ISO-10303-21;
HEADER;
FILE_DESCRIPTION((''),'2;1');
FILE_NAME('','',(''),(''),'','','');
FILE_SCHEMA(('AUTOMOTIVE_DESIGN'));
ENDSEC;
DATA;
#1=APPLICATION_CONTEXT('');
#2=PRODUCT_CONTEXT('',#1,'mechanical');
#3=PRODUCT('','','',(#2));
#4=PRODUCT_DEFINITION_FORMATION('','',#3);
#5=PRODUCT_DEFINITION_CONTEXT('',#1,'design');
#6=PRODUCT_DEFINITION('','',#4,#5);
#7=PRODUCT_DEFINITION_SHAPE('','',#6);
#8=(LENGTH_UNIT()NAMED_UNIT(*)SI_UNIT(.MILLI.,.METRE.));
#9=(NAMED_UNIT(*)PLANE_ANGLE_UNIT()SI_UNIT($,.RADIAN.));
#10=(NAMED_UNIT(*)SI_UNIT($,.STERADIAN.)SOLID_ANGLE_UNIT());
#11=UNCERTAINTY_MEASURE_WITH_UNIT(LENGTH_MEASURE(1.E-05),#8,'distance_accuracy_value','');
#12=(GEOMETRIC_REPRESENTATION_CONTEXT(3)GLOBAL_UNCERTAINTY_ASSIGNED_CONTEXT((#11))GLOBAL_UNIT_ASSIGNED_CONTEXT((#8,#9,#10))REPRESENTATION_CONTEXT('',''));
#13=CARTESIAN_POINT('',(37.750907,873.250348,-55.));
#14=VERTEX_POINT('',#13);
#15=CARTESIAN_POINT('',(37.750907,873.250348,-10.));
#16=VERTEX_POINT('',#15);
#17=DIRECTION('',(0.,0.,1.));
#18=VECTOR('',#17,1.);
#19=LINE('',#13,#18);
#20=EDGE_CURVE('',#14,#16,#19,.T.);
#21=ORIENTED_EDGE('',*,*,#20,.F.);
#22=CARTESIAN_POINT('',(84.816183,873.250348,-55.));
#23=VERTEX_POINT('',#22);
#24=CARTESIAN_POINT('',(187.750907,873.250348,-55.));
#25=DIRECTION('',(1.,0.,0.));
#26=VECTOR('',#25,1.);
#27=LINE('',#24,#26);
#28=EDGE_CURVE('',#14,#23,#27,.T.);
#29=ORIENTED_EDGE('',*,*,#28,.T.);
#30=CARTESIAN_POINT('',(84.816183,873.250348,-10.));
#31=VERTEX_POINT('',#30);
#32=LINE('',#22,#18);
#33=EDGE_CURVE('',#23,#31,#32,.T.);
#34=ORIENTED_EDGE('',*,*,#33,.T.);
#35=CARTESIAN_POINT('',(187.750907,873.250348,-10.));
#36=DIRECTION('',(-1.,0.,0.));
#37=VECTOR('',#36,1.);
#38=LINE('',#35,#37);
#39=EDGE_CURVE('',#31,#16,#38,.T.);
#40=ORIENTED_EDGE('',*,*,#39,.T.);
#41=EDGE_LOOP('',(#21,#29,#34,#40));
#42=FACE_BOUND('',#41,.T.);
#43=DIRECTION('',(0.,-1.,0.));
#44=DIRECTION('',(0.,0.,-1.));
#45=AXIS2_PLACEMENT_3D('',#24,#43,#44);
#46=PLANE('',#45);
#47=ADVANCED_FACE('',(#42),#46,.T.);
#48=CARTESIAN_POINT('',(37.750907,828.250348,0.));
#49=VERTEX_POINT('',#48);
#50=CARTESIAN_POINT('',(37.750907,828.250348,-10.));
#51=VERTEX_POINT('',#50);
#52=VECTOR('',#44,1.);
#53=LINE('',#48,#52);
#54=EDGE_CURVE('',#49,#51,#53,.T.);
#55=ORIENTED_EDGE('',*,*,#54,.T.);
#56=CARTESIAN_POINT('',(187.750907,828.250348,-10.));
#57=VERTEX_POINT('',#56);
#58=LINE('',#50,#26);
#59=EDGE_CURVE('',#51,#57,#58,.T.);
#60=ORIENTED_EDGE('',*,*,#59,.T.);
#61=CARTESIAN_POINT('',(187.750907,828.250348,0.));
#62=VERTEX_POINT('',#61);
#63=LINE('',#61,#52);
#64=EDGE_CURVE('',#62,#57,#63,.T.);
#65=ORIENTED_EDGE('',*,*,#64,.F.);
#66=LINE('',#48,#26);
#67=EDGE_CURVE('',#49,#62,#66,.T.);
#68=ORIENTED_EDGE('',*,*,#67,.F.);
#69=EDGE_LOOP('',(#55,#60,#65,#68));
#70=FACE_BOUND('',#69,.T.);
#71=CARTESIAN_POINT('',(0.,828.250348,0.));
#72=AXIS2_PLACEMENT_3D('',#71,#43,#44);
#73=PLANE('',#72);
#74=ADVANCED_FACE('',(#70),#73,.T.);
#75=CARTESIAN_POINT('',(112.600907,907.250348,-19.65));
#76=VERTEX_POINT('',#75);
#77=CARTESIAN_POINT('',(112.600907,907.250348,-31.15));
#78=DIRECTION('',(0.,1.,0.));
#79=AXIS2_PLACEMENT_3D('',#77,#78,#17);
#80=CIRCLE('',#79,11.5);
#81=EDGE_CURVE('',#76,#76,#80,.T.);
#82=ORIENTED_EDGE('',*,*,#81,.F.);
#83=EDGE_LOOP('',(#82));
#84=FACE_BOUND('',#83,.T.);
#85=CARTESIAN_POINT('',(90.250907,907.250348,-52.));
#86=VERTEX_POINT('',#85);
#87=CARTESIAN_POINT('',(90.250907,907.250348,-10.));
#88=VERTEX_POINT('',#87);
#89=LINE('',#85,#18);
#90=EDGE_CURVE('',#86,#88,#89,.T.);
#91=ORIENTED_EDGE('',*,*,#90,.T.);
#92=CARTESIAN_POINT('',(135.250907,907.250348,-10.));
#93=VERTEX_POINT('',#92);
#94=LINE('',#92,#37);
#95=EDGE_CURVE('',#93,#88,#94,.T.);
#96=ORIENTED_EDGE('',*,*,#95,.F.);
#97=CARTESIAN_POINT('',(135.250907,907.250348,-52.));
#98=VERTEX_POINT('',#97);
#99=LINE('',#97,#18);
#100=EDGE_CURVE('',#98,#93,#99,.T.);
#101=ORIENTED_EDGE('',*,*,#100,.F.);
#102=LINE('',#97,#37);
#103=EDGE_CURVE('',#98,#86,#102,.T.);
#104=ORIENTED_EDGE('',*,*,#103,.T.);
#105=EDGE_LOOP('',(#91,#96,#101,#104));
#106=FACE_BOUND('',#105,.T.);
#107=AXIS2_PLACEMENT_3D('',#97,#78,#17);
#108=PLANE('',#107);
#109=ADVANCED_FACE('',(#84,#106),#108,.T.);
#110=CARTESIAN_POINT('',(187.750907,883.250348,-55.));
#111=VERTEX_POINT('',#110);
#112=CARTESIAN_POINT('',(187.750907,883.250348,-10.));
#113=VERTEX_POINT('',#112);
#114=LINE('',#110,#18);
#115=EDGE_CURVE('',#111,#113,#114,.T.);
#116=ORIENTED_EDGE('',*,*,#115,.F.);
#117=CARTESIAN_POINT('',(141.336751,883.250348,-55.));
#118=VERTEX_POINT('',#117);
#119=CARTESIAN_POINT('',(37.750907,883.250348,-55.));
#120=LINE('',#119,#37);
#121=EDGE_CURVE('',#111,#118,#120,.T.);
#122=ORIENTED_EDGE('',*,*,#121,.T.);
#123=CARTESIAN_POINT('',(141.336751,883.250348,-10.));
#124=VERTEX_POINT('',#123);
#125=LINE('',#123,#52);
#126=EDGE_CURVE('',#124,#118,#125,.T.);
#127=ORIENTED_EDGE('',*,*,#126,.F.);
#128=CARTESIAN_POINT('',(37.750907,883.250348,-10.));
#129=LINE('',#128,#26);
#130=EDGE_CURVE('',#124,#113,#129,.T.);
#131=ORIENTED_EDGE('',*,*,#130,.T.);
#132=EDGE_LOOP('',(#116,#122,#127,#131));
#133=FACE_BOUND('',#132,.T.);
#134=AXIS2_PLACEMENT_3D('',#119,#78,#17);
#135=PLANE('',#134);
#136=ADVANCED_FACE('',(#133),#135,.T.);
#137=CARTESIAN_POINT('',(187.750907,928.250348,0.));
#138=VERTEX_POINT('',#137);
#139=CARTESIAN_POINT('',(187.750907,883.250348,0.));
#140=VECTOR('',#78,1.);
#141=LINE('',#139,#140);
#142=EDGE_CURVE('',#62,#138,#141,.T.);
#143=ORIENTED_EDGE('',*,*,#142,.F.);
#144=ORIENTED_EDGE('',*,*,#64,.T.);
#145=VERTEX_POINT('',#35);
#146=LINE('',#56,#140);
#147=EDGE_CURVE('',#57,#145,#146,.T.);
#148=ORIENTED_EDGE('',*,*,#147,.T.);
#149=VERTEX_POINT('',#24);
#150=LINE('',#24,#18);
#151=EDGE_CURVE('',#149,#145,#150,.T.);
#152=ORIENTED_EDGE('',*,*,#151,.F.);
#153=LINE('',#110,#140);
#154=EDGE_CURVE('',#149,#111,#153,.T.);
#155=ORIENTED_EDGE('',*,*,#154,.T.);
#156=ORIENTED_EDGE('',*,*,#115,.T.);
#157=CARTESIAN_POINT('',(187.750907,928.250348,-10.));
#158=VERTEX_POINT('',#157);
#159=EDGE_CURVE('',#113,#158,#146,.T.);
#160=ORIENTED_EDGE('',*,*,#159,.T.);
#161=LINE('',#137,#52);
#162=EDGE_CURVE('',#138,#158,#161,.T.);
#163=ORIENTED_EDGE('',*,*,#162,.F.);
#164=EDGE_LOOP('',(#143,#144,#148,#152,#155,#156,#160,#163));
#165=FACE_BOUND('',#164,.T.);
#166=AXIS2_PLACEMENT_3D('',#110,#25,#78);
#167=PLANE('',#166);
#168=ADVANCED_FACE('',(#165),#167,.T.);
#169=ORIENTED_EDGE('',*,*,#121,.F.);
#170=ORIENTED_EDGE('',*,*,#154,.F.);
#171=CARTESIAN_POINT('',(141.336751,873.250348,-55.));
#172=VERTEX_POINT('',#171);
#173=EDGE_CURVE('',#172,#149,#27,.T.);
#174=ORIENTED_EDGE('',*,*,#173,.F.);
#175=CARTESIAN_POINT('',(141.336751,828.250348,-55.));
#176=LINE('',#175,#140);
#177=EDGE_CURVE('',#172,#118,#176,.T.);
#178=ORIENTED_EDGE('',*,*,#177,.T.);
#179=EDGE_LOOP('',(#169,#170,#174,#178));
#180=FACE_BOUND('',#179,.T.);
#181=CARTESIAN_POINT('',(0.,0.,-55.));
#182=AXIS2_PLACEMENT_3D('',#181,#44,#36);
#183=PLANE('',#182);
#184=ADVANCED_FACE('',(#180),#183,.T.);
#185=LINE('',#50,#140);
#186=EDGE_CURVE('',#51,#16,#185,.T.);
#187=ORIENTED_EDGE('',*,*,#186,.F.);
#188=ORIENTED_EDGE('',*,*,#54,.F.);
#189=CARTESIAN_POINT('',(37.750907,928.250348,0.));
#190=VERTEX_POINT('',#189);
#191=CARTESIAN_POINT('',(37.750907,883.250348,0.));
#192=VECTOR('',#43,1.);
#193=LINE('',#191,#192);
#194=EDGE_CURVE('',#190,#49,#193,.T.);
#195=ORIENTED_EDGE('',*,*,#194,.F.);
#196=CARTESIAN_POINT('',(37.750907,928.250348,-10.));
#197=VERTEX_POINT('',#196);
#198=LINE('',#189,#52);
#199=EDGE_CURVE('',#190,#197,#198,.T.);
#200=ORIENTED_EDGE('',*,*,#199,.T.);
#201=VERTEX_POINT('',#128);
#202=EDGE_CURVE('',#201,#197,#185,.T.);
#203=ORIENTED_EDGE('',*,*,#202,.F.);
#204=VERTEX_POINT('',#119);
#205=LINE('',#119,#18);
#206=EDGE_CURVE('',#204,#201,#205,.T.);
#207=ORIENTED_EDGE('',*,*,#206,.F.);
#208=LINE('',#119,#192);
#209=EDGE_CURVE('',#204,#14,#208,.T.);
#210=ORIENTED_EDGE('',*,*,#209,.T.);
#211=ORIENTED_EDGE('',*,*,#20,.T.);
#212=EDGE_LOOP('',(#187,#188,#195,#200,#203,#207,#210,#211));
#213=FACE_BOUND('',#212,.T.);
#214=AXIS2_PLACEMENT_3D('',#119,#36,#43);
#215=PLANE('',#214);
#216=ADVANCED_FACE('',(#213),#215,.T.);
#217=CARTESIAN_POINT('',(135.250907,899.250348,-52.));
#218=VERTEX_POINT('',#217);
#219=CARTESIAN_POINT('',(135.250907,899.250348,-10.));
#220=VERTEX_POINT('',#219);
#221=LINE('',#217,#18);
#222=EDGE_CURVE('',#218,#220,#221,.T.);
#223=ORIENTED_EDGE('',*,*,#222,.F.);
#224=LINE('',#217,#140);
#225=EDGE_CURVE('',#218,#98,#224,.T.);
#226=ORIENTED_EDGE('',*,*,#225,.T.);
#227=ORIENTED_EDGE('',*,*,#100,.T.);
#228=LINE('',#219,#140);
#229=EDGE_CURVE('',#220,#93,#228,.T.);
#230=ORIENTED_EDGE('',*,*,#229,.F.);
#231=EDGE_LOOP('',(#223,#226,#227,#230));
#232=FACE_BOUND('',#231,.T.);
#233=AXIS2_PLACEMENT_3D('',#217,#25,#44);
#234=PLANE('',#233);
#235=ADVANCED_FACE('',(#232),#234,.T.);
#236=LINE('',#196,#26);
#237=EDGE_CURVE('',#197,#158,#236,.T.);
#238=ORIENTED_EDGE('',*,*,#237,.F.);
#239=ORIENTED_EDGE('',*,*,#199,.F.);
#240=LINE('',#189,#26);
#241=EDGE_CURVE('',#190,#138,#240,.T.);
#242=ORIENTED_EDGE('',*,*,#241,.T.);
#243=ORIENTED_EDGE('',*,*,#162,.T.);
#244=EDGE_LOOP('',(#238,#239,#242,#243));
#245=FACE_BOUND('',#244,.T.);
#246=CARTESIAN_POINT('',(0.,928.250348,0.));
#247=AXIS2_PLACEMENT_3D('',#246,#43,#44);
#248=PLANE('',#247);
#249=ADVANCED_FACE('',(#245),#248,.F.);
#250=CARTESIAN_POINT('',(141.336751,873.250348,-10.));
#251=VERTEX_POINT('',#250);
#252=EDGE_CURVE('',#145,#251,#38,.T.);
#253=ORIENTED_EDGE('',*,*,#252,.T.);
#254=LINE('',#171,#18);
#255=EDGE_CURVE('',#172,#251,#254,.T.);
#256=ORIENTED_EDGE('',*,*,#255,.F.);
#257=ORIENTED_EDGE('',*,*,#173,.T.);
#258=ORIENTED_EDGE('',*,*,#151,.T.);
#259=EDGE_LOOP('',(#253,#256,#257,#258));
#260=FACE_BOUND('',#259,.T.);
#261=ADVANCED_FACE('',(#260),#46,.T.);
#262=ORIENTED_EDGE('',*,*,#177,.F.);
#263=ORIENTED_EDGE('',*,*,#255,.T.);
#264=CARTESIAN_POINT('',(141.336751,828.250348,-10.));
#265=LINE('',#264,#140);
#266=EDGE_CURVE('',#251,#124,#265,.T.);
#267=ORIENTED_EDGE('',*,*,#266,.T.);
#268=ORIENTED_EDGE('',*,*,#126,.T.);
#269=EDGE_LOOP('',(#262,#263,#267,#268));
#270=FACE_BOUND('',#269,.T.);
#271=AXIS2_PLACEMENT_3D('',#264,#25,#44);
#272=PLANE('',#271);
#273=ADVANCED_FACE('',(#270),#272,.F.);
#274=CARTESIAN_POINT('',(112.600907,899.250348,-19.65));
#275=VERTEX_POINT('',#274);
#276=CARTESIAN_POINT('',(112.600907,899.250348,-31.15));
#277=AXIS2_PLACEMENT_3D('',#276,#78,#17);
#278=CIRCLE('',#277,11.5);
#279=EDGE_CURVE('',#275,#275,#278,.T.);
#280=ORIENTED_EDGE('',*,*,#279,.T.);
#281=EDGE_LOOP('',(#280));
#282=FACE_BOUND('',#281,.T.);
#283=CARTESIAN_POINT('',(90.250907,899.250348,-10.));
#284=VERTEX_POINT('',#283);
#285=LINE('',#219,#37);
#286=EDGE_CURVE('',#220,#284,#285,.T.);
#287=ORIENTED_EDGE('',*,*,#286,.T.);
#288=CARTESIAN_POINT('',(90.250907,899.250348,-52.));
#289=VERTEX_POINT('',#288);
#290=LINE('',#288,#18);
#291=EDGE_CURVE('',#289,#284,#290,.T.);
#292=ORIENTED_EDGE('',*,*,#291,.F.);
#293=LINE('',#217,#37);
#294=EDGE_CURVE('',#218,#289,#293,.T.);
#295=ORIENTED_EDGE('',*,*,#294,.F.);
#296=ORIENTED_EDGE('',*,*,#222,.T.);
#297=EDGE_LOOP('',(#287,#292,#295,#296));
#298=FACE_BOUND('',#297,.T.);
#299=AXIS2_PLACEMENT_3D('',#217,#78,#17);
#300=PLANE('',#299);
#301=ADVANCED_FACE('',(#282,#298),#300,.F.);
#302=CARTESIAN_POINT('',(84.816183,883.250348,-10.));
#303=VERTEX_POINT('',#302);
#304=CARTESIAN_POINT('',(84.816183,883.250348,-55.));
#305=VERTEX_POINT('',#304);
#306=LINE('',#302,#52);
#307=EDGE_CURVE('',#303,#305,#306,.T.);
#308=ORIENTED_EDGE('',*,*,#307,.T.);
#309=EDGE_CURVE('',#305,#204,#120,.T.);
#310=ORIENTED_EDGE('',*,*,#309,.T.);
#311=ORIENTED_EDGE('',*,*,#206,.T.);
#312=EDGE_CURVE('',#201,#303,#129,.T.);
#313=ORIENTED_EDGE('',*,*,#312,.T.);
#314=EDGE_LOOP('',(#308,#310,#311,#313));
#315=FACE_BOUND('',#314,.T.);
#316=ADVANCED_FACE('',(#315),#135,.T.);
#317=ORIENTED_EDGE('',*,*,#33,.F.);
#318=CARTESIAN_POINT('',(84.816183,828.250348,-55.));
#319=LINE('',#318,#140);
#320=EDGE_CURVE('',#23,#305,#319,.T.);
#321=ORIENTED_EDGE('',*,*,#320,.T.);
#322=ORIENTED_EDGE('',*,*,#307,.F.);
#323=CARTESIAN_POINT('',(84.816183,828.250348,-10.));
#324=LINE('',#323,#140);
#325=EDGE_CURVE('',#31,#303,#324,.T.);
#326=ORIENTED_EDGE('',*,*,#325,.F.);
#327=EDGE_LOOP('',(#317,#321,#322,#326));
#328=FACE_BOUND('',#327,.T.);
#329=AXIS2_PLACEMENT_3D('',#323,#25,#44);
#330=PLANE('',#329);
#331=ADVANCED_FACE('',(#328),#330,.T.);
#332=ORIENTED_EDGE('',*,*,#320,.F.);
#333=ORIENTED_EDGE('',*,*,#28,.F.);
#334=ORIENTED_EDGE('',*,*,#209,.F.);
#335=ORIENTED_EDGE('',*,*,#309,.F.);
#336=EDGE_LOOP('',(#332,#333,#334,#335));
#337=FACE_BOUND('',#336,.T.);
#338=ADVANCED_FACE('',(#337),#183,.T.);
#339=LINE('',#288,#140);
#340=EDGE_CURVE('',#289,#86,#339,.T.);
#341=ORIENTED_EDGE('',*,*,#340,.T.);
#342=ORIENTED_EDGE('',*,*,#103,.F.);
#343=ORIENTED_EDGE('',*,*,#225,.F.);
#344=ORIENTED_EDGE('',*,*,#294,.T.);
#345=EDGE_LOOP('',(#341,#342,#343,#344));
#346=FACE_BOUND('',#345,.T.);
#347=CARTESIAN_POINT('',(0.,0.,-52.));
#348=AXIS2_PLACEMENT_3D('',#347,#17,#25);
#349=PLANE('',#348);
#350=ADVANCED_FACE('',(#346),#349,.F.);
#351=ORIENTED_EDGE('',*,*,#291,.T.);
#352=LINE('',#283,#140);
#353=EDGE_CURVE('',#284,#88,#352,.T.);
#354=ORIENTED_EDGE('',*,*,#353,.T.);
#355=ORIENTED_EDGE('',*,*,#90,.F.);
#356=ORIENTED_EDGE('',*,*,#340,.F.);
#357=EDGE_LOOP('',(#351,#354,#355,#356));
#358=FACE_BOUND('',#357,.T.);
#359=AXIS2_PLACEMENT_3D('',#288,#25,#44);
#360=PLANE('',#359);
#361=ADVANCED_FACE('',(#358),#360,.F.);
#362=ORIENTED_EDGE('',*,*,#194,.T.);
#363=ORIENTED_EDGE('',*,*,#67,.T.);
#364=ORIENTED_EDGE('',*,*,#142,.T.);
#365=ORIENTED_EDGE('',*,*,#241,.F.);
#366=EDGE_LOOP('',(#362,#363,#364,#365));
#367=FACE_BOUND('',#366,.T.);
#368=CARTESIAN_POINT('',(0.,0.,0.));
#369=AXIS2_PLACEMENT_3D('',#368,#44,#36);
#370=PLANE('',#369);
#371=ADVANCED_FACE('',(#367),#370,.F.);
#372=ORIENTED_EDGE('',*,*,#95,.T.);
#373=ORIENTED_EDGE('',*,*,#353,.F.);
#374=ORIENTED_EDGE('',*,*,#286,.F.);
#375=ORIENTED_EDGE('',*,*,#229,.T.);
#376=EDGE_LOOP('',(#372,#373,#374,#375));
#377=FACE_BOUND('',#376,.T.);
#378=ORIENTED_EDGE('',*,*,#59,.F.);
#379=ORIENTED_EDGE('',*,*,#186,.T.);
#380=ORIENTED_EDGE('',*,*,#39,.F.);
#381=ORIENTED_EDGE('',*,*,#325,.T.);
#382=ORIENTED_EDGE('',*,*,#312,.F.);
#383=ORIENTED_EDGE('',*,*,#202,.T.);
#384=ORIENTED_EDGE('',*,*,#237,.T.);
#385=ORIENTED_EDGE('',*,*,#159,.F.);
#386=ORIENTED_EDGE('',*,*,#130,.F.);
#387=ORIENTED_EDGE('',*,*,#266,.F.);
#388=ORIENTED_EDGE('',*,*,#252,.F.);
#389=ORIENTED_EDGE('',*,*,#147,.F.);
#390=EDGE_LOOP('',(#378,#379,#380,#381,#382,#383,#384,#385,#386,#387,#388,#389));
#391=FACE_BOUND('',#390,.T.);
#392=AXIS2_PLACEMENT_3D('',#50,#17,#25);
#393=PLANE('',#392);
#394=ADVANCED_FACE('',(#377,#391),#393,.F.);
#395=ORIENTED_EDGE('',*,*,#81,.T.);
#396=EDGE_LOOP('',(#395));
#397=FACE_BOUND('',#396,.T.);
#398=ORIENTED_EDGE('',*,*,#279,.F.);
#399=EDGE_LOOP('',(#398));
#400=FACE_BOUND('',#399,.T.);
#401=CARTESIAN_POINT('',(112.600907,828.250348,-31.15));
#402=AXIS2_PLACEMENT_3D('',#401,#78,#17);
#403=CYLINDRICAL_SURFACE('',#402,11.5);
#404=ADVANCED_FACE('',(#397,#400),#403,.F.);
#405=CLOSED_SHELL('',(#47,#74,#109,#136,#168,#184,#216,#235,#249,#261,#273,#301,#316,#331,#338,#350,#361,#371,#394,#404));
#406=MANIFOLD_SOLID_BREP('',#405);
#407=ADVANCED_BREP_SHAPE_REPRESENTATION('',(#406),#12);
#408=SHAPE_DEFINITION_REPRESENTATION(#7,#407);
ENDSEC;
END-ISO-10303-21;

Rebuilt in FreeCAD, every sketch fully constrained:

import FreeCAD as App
import Part
import Sketcher

V = App.Vector


def add_polygon(sketch, points):
    """Adds a closed chain of lines whose ends are joined by coincident constraints."""
    first, n = sketch.GeometryCount, len(points)
    for a, b in zip(points, points[1:] + points[:1]):
        sketch.addGeometry(Part.LineSegment(App.Vector(*a, 0), App.Vector(*b, 0)), False)
    for i in range(n):
        sketch.addConstraint(Sketcher.Constraint("Coincident", first + i, 2, first + (i + 1) % n, 1))

doc = App.newDocument("Part")
body = doc.addObject("PartDesign::Body", "Body")

sketch1 = doc.addObject("Sketcher::SketchObject", "Sketch")
body.addObject(sketch1)
sketch1.AttachmentSupport = (doc.XY_Plane, [""])
sketch1.MapMode = "FlatFace"
add_polygon(sketch1, [(38, 883), (38, 873), (188, 873), (188, 883)])
sketch1.addConstraint(Sketcher.Constraint("Vertical", 0))
sketch1.addConstraint(Sketcher.Constraint("Horizontal", 1))
sketch1.addConstraint(Sketcher.Constraint("Vertical", 2))
sketch1.addConstraint(Sketcher.Constraint("Horizontal", 3))
sketch1.addConstraint(Sketcher.Constraint("DistanceX", 1, 1, 1, 2, 150.0))
sketch1.addConstraint(Sketcher.Constraint("DistanceY", 0, 2, 0, 1, 10.0))
sketch1.addConstraint(Sketcher.Constraint("DistanceY", -1, 1, 0, 2, 873.250348))
sketch1.addConstraint(Sketcher.Constraint("DistanceX", -1, 1, 0, 2, 37.750907))
pad1 = doc.addObject("PartDesign::Pad", "Pad")
body.addObject(pad1)
pad1.Profile = sketch1
pad1.Length = 55
pad1.Reversed = True

sketch2 = doc.addObject("Sketcher::SketchObject", "Sketch001")
body.addObject(sketch2)
sketch2.AttachmentSupport = (doc.XZ_Plane, [""])
sketch2.MapMode = "FlatFace"
sketch2.AttachmentOffset = App.Placement(V(0, 0, -883.250348), App.Rotation())
add_polygon(sketch2, [(38, -10), (38, 0), (188, 0), (188, -10)])
sketch2.addConstraint(Sketcher.Constraint("Vertical", 0))
sketch2.addConstraint(Sketcher.Constraint("Horizontal", 1))
sketch2.addConstraint(Sketcher.Constraint("Vertical", 2))
sketch2.addConstraint(Sketcher.Constraint("Horizontal", 3))
sketch2.addConstraint(Sketcher.Constraint("PointOnObject", 0, 2, -1))
sketch2.addConstraint(Sketcher.Constraint("DistanceX", 1, 1, 1, 2, 150.0))
sketch2.addConstraint(Sketcher.Constraint("DistanceY", 0, 1, 0, 2, 10.0))
sketch2.addConstraint(Sketcher.Constraint("DistanceX", -1, 1, 0, 2, 37.750907))
pad2 = doc.addObject("PartDesign::Pad", "Pad001")
body.addObject(pad2)
pad2.Profile = sketch2
pad2.Type = "TwoLengths"
pad2.Length = 45
pad2.Length2 = 55
pad2.Reversed = True

sketch3 = doc.addObject("Sketcher::SketchObject", "Sketch002")
body.addObject(sketch3)
sketch3.AttachmentSupport = (doc.XY_Plane, [""])
sketch3.MapMode = "FlatFace"
sketch3.AttachmentOffset = App.Placement(V(0, 0, -10), App.Rotation())
add_polygon(sketch3, [(135, 907), (135, 899), (90, 899), (90, 907)])
sketch3.addConstraint(Sketcher.Constraint("Vertical", 0))
sketch3.addConstraint(Sketcher.Constraint("Horizontal", 1))
sketch3.addConstraint(Sketcher.Constraint("Vertical", 2))
sketch3.addConstraint(Sketcher.Constraint("Horizontal", 3))
sketch3.addConstraint(Sketcher.Constraint("DistanceX", 1, 2, 1, 1, 45.0))
sketch3.addConstraint(Sketcher.Constraint("DistanceY", 0, 2, 0, 1, 8.0))
sketch3.addConstraint(Sketcher.Constraint("DistanceY", -1, 1, 0, 2, 899.250348))
sketch3.addConstraint(Sketcher.Constraint("DistanceX", -1, 1, 0, 2, 135.250907))
pad3 = doc.addObject("PartDesign::Pad", "Pad002")
body.addObject(pad3)
pad3.Profile = sketch3
pad3.Length = 42
pad3.Reversed = True

sketch4 = doc.addObject("Sketcher::SketchObject", "Sketch003")
body.addObject(sketch4)
sketch4.AttachmentSupport = (doc.XZ_Plane, [""])
sketch4.MapMode = "FlatFace"
sketch4.AttachmentOffset = App.Placement(V(0, 0, -883.250348), App.Rotation())
add_polygon(sketch4, [(85, -55), (85, -10), (141, -10), (141, -55)])
sketch4.addConstraint(Sketcher.Constraint("Vertical", 0))
sketch4.addConstraint(Sketcher.Constraint("Horizontal", 1))
sketch4.addConstraint(Sketcher.Constraint("Vertical", 2))
sketch4.addConstraint(Sketcher.Constraint("Horizontal", 3))
sketch4.addConstraint(Sketcher.Constraint("DistanceY", 0, 1, 0, 2, 45.0))
sketch4.addConstraint(Sketcher.Constraint("DistanceY", 0, 2, -1, 1, 10.0))
sketch4.addConstraint(Sketcher.Constraint("DistanceX", 1, 1, 1, 2, 56.520569))
sketch4.addConstraint(Sketcher.Constraint("DistanceX", -1, 1, 1, 2, 141.336751))
pocket1 = doc.addObject("PartDesign::Pocket", "Pocket")
body.addObject(pocket1)
pocket1.Profile = sketch4
pocket1.Type = "ThroughAll"
pocket1.Reversed = True

sketch5 = doc.addObject("Sketcher::SketchObject", "Sketch004")
body.addObject(sketch5)
sketch5.AttachmentSupport = (doc.XZ_Plane, [""])
sketch5.MapMode = "FlatFace"
sketch5.AttachmentOffset = App.Placement(V(0, 0, -907.250348), App.Rotation())
sketch5.addGeometry(Part.Circle(V(113, -31, 0), V(0, 0, 1), 12), False)
sketch5.addConstraint(Sketcher.Constraint("Diameter", 0, 23.0))
sketch5.addConstraint(Sketcher.Constraint("DistanceY", 0, 3, -1, 1, 31.15))
sketch5.addConstraint(Sketcher.Constraint("DistanceX", -1, 1, 0, 3, 112.600907))
pocket2 = doc.addObject("PartDesign::Pocket", "Pocket001")
body.addObject(pocket2)
pocket2.Profile = sketch5
pocket2.Type = "ThroughAll"
pocket2.Reversed = True

doc.recompute()
